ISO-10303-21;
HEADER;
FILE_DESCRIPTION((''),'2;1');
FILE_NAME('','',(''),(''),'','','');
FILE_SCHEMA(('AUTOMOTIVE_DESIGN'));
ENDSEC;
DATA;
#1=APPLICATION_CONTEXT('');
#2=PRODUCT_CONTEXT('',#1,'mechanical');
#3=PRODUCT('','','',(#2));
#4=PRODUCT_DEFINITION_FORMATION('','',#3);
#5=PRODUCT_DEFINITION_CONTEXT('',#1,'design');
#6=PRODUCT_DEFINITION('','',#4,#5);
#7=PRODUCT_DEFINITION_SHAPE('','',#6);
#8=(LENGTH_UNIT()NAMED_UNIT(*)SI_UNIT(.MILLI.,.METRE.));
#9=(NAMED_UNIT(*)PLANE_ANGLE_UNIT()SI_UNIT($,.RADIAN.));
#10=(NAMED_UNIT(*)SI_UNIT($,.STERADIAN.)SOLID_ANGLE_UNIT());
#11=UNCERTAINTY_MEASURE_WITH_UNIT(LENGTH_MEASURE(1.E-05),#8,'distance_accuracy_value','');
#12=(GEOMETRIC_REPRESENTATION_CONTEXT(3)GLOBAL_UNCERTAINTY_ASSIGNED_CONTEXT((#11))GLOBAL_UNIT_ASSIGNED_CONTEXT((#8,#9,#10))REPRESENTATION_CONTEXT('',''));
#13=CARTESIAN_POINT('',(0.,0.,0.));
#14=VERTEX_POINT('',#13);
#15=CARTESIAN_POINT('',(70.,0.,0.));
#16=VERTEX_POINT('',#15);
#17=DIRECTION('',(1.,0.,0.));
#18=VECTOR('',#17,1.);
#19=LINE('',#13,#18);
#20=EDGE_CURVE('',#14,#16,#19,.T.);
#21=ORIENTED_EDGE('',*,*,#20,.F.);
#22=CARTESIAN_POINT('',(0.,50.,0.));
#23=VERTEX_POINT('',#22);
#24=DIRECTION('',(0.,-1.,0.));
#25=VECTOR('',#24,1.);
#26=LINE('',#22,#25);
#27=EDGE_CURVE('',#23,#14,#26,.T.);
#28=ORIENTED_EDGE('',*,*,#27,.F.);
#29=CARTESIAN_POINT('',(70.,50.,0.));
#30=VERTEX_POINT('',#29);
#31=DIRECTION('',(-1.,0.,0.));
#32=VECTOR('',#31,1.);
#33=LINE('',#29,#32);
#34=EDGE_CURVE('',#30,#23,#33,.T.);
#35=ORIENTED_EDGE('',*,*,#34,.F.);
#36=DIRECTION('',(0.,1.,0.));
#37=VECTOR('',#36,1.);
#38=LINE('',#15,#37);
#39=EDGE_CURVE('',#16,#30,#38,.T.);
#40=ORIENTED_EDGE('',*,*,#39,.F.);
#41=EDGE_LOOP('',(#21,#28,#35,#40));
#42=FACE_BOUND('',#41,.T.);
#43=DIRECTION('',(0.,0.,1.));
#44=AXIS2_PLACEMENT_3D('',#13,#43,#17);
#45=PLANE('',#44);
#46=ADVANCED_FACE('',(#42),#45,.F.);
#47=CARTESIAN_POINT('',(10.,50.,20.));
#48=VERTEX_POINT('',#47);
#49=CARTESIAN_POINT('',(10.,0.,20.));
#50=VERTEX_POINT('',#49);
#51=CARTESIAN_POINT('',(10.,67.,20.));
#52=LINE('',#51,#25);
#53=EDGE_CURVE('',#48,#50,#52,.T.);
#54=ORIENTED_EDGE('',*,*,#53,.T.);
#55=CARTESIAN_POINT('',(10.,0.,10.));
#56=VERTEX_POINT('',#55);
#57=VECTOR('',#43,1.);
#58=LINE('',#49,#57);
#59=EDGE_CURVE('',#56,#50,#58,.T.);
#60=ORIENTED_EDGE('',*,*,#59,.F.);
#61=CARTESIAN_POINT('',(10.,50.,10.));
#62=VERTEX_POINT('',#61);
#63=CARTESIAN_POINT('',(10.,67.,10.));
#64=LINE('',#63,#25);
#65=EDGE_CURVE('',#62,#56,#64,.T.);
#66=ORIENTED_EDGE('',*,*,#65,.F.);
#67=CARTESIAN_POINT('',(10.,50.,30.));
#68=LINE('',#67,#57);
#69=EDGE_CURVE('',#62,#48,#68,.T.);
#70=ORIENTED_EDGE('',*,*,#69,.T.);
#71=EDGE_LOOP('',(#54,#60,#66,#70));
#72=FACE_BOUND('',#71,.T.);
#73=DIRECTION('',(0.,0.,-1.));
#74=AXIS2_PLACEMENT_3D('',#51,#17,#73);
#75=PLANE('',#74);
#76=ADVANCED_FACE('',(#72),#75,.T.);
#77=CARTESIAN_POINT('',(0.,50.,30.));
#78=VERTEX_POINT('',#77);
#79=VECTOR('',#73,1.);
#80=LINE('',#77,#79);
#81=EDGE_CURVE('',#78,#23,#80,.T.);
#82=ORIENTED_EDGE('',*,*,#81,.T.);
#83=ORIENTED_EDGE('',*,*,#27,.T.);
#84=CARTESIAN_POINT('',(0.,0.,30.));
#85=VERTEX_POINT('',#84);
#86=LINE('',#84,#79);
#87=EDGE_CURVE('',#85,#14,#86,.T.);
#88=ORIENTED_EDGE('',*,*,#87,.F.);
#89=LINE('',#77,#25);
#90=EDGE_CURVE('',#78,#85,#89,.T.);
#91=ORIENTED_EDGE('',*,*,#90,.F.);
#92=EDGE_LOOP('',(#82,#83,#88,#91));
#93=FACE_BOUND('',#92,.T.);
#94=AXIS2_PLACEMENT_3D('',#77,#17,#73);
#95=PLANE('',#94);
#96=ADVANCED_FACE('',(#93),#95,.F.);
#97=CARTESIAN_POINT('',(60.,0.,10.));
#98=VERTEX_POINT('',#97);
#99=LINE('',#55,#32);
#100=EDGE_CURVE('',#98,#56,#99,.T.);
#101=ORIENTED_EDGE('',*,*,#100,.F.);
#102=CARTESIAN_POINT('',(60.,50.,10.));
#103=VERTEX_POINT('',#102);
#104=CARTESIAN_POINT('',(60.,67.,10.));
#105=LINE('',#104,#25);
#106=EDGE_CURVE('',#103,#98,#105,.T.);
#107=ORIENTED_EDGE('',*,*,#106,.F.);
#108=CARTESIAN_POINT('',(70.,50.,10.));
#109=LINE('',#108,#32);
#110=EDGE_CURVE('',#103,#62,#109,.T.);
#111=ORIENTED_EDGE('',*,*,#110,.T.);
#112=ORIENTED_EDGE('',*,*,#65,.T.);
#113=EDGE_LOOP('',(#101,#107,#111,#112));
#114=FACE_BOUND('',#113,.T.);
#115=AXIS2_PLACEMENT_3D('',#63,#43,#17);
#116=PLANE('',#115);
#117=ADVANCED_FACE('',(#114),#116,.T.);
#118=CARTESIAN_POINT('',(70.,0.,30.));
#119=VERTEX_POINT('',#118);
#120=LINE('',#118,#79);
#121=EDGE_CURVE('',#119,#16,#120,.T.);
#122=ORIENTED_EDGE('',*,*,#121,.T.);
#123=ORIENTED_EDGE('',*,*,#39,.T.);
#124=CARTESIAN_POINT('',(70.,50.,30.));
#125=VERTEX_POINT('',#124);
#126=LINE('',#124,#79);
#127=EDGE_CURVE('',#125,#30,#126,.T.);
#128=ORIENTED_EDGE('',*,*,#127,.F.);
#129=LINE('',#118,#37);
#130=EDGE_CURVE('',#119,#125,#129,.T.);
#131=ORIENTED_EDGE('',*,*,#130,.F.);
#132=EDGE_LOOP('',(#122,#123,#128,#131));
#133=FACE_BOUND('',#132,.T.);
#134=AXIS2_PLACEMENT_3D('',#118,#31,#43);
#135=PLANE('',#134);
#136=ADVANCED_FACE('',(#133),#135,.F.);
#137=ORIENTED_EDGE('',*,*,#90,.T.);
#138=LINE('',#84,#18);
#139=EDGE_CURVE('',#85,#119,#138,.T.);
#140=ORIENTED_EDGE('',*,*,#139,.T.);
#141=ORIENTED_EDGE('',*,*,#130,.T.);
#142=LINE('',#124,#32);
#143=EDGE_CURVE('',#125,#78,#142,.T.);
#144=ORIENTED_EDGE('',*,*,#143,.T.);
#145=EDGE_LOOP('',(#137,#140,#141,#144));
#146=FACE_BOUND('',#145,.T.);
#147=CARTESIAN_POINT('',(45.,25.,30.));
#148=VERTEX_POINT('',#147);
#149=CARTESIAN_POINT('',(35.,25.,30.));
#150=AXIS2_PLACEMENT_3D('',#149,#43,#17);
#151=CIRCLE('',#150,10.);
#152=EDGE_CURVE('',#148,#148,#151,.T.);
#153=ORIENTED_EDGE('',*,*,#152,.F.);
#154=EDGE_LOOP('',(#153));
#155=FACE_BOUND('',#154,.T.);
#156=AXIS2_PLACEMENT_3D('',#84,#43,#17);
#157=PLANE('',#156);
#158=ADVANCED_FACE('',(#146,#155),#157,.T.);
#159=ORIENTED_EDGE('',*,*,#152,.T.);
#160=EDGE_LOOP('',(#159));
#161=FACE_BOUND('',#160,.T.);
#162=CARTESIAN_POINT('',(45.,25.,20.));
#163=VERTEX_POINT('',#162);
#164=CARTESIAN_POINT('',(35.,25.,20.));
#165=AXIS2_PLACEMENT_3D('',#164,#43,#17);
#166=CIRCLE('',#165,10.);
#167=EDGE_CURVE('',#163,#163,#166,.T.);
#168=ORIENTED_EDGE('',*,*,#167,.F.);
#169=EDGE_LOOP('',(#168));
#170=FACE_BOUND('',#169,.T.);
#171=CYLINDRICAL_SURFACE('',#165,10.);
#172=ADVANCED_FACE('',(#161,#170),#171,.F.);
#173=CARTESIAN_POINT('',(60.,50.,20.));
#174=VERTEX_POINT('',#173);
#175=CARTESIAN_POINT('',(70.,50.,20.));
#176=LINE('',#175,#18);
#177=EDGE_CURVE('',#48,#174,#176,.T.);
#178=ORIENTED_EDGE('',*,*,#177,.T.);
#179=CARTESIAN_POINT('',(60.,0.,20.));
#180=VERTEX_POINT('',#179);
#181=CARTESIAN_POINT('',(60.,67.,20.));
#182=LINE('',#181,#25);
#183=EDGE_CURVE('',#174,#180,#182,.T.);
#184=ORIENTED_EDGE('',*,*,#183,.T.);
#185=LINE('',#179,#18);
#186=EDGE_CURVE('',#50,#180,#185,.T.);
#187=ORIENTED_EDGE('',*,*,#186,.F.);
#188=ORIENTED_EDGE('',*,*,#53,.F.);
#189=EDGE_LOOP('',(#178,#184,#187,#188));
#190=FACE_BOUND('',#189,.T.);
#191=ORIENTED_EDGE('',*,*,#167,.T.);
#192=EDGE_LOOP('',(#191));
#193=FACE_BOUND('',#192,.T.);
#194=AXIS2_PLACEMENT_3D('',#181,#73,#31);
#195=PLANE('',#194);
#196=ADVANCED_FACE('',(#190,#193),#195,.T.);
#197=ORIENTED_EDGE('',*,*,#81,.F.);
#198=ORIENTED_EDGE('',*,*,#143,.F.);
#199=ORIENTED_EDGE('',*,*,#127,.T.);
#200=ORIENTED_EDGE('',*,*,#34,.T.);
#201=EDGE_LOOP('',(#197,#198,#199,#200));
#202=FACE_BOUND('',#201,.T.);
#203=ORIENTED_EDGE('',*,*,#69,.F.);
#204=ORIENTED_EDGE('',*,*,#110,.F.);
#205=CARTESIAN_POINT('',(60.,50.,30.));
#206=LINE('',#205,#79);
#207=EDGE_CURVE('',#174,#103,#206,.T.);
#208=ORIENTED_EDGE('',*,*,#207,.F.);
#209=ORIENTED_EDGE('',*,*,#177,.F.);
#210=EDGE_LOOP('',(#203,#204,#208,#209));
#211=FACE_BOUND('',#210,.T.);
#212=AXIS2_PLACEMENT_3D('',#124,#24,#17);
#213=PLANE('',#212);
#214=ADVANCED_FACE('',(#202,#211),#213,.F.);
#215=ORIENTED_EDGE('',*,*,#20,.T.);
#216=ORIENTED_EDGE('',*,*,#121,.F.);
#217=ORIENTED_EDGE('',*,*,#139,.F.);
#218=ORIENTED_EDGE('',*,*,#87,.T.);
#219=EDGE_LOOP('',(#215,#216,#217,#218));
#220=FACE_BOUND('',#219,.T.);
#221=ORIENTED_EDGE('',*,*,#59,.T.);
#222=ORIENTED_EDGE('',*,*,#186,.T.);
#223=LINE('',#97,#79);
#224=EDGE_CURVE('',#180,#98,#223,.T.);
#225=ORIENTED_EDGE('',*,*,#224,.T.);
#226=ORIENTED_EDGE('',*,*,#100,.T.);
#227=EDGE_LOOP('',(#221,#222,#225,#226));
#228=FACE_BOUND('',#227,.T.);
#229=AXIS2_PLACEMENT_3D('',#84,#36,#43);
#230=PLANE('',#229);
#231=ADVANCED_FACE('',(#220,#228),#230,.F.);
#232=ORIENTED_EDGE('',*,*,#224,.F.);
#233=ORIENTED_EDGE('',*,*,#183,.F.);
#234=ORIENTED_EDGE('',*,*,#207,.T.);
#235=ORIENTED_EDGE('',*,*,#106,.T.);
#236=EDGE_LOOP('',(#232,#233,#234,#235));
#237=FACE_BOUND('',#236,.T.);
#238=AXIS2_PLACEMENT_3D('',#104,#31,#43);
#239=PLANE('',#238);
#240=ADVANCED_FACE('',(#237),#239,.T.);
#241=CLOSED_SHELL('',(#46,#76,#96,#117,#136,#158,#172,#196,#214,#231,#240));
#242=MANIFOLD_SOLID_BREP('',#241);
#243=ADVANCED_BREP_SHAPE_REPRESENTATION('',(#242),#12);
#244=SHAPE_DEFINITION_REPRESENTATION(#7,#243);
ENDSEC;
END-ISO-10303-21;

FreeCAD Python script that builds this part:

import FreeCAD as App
import Part
import Sketcher
from FreeCAD import Vector
Q = App.Units.Quantity

doc = App.newDocument("Part")
body = doc.addObject("PartDesign::Body", "Body")

sketch1 = body.newObject("Sketcher::SketchObject", "Sketch")
sketch1.AttachmentSupport = (doc.getObject("XY_Plane"), [""])
sketch1.MapMode = "FlatFace"
sketch1.addGeometry([
    Part.LineSegment(Vector(0, 50, 0), Vector(0, 0, 0)),
    Part.LineSegment(Vector(0, 0, 0), Vector(70, 0, 0)),
    Part.LineSegment(Vector(70, 0, 0), Vector(70, 50, 0)),
    Part.LineSegment(Vector(70, 50, 0), Vector(0, 50, 0)),
], False)
sketch1.addConstraint([
    Sketcher.Constraint("Coincident", 0, 2, 1, 1),
    Sketcher.Constraint("Coincident", 1, 2, 2, 1),
    Sketcher.Constraint("Coincident", 2, 2, 3, 1),
    Sketcher.Constraint("Coincident", 3, 2, 0, 1),
    Sketcher.Constraint("Vertical", 0),
    Sketcher.Constraint("Horizontal", 1),
    Sketcher.Constraint("Vertical", 2),
    Sketcher.Constraint("Horizontal", 3),
    Sketcher.Constraint("Coincident", 0, 2, -1, 1),
    Sketcher.Constraint("DistanceX", 1, 1, 1, 2, Q("70 mm")),
    Sketcher.Constraint("DistanceY", 0, 2, 0, 1, Q("50 mm")),
])
pad1 = body.newObject("PartDesign::Pad", "Pad")
pad1.Profile = sketch1
pad1.Length = 30

sketch2 = body.newObject("Sketcher::SketchObject", "Sketch001")
sketch2.AttachmentSupport = (doc.getObject("XZ_Plane"), [""])
sketch2.MapMode = "FlatFace"
sketch2.addGeometry([
    Part.LineSegment(Vector(10, 10, 0), Vector(10, 20, 0)),
    Part.LineSegment(Vector(10, 20, 0), Vector(60, 20, 0)),
    Part.LineSegment(Vector(60, 20, 0), Vector(60, 10, 0)),
    Part.LineSegment(Vector(60, 10, 0), Vector(10, 10, 0)),
], False)
sketch2.addConstraint([
    Sketcher.Constraint("Coincident", 0, 2, 1, 1),
    Sketcher.Constraint("Coincident", 1, 2, 2, 1),
    Sketcher.Constraint("Coincident", 2, 2, 3, 1),
    Sketcher.Constraint("Coincident", 3, 2, 0, 1),
    Sketcher.Constraint("Vertical", 0),
    Sketcher.Constraint("Horizontal", 1),
    Sketcher.Constraint("Vertical", 2),
    Sketcher.Constraint("Horizontal", 3),
    Sketcher.Constraint("DistanceX", 1, 1, 1, 2, Q("50 mm")),
    Sketcher.Constraint("DistanceY", 0, 1, 0, 2, Q("10 mm")),
    Sketcher.Constraint("DistanceX", -1, 1, 0, 2, Q("10 mm")),
    Sketcher.Constraint("DistanceY", -1, 1, 0, 2, Q("20 mm")),
])
pocket1 = body.newObject("PartDesign::Pocket", "Pocket")
pocket1.Profile = sketch2
pocket1.Length = 67

sketch3 = body.newObject("Sketcher::SketchObject", "Sketch002")
sketch3.AttachmentSupport = (doc.getObject("XY_Plane"), [""])
sketch3.MapMode = "FlatFace"
sketch3.AttachmentOffset = App.Placement(Vector(0, 0, 30), App.Rotation())
sketch3.addGeometry(Part.Circle(Vector(35, 25, 0), Vector(0, 0, 1), 10), False)
sketch3.addConstraint([
    Sketcher.Constraint("Diameter", 0, Q("20 mm")),
    Sketcher.Constraint("DistanceX", -1, 1, 0, 3, Q("35 mm")),
    Sketcher.Constraint("DistanceY", -1, 1, 0, 3, Q("25 mm")),
])
pocket2 = body.newObject("PartDesign::Pocket", "Pocket001")
pocket2.Profile = sketch3
pocket2.Length = 10

doc.recompute()
